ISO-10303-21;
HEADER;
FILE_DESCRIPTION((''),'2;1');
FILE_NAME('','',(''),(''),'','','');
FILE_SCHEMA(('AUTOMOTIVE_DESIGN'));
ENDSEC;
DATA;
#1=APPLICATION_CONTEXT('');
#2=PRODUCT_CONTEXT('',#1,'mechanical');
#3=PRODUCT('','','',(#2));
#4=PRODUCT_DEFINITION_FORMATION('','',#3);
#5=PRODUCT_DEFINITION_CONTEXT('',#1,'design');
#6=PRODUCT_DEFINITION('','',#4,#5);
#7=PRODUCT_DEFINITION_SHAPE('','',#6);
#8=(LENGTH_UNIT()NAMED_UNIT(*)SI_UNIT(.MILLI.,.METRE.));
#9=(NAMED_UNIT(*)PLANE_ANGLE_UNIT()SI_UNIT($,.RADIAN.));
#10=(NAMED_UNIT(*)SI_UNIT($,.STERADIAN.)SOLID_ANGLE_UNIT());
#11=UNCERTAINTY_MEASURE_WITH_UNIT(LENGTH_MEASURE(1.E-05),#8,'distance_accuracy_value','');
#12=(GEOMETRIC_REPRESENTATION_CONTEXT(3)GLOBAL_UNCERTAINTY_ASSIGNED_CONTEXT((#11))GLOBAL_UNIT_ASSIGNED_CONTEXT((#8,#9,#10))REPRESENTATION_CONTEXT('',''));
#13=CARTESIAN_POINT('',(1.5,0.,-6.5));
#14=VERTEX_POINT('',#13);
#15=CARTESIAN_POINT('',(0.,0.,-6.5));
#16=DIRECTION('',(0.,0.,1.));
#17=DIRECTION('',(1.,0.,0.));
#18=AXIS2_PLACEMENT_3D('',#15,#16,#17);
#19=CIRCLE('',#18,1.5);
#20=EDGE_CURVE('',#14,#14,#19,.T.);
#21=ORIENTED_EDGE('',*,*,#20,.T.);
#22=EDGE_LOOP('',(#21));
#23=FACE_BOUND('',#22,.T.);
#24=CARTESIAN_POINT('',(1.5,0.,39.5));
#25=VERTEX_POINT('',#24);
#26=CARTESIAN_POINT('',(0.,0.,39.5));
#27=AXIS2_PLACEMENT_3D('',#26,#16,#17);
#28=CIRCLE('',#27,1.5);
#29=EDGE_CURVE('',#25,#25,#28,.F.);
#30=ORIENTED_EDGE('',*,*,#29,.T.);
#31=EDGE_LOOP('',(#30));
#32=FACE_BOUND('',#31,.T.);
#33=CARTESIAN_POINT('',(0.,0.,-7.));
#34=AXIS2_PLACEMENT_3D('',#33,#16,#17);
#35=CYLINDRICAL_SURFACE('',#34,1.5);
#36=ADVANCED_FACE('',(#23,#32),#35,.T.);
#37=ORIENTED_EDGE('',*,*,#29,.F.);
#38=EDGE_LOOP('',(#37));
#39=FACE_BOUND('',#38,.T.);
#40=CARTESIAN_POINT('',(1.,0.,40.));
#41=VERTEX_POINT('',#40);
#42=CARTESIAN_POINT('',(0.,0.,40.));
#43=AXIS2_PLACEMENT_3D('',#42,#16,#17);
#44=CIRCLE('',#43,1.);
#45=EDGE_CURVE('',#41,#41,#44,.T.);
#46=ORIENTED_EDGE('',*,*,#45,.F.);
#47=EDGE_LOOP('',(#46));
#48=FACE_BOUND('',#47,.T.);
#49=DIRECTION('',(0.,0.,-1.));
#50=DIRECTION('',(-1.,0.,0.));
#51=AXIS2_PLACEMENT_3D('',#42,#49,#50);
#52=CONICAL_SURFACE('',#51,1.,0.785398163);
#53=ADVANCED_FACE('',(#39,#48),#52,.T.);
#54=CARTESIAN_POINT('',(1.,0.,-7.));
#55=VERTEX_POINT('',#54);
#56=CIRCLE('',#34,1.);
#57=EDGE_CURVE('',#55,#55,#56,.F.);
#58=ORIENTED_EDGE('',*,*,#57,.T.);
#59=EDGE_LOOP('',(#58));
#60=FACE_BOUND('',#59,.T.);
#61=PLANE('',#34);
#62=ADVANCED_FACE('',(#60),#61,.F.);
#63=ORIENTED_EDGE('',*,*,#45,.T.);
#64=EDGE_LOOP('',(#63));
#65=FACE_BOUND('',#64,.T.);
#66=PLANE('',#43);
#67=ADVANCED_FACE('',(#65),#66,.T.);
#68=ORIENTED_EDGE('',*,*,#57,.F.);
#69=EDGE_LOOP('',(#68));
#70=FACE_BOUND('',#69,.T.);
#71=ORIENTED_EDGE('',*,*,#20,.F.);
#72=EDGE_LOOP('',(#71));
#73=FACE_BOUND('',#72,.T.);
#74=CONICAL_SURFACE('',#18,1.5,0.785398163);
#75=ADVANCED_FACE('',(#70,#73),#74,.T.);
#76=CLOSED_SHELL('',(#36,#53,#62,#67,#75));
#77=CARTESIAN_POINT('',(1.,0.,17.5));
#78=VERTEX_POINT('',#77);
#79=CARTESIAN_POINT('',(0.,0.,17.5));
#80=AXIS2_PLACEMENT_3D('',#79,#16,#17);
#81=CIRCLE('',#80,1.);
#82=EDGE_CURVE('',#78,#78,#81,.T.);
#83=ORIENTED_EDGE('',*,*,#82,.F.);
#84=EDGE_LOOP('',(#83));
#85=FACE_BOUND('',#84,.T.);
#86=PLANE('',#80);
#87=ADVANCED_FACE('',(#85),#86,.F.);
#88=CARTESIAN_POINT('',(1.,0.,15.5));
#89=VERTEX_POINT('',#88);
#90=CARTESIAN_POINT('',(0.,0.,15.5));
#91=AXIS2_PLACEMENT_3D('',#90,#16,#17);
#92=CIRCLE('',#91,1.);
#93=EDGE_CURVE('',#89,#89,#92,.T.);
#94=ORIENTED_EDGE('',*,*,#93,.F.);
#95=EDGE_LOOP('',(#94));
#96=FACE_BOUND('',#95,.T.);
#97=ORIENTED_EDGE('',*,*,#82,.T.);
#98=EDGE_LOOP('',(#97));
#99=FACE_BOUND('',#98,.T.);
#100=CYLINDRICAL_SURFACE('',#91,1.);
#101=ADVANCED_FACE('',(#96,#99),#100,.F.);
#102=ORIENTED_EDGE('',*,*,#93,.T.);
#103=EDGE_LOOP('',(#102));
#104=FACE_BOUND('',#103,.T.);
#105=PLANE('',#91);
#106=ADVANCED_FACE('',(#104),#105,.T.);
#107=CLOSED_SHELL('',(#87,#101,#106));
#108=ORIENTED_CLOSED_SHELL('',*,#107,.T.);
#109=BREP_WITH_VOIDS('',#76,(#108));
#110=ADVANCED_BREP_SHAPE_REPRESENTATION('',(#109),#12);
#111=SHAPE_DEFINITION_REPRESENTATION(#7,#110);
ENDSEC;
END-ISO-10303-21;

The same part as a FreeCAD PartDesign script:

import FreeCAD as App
import Part
import Sketcher

V = App.Vector


def edges_at(feature, points):
    """Names of the edges that pass closest to the given points."""
    edges = feature.Shape.Edges
    near = lambda p: min(range(len(edges)), key=lambda i: edges[i].distToShape(Part.Vertex(*p))[0])
    return sorted({f"Edge{near(p) + 1}" for p in points})

doc = App.newDocument("Part")
params = doc.addObject("Spreadsheet::Sheet", "Params")
for row, (alias, value) in enumerate([
    ("sketch1_diameter", "3 mm"),
    ("pad1_length", "40 mm"),
    ("pad1_length2", "7 mm"),
    ("chamfer_size", "0.5 mm"),
    ("sketch2_diameter", "2 mm"),
    ("pocket1_length", "1 mm"),
    ("pocket1_length2", "1 mm"),
], start=1):
    params.set(f"A{row}", alias)
    params.set(f"B{row}", "=" + value)
    params.setAlias(f"B{row}", alias)

body = doc.addObject("PartDesign::Body", "Body")

sketch1 = body.newObject("Sketcher::SketchObject", "Sketch")
sketch1.AttachmentSupport = (doc.getObject("XY_Plane"), [""])
sketch1.MapMode = "FlatFace"
sketch1.addGeometry(Part.Circle(V(0, 0, 0), V(0, 0, 1), 1.5), False)
sketch1.addConstraint(Sketcher.Constraint("Coincident", 0, 3, -1, 1))
sketch1.addConstraint(Sketcher.Constraint("Diameter", 0, 3.0))
sketch1.setExpression("Constraints[1]", "Params.sketch1_diameter")
pad1 = body.newObject("PartDesign::Pad", "Pad")
pad1.Profile = sketch1
pad1.Type = "TwoLengths"
pad1.setExpression("Length", "Params.pad1_length")
pad1.setExpression("Length2", "Params.pad1_length2")
doc.recompute()

chamfer = body.newObject("PartDesign::Chamfer", "Chamfer")
chamfer.Base = (pad1, edges_at(pad1, [(-1.5, 0, 40), (-1.5, 0, -7)]))
chamfer.setExpression("Size", "Params.chamfer_size")

sketch2 = body.newObject("Sketcher::SketchObject", "Sketch001")
sketch2.AttachmentSupport = (doc.getObject("XY_Plane"), [""])
sketch2.MapMode = "FlatFace"
sketch2.AttachmentOffset = App.Placement(V(0, 0, 16.5), App.Rotation())
sketch2.addGeometry(Part.Circle(V(0, 0, 0), V(0, 0, 1), 1), False)
sketch2.addConstraint(Sketcher.Constraint("Coincident", 0, 3, -1, 1))
sketch2.addConstraint(Sketcher.Constraint("Diameter", 0, 2.0))
sketch2.setExpression("Constraints[1]", "Params.sketch2_diameter")
pocket1 = body.newObject("PartDesign::Pocket", "Pocket")
pocket1.Profile = sketch2
pocket1.Type = "TwoLengths"
pocket1.setExpression("Length", "Params.pocket1_length")
pocket1.setExpression("Length2", "Params.pocket1_length2")
pocket1.Reversed = True

doc.recompute()
